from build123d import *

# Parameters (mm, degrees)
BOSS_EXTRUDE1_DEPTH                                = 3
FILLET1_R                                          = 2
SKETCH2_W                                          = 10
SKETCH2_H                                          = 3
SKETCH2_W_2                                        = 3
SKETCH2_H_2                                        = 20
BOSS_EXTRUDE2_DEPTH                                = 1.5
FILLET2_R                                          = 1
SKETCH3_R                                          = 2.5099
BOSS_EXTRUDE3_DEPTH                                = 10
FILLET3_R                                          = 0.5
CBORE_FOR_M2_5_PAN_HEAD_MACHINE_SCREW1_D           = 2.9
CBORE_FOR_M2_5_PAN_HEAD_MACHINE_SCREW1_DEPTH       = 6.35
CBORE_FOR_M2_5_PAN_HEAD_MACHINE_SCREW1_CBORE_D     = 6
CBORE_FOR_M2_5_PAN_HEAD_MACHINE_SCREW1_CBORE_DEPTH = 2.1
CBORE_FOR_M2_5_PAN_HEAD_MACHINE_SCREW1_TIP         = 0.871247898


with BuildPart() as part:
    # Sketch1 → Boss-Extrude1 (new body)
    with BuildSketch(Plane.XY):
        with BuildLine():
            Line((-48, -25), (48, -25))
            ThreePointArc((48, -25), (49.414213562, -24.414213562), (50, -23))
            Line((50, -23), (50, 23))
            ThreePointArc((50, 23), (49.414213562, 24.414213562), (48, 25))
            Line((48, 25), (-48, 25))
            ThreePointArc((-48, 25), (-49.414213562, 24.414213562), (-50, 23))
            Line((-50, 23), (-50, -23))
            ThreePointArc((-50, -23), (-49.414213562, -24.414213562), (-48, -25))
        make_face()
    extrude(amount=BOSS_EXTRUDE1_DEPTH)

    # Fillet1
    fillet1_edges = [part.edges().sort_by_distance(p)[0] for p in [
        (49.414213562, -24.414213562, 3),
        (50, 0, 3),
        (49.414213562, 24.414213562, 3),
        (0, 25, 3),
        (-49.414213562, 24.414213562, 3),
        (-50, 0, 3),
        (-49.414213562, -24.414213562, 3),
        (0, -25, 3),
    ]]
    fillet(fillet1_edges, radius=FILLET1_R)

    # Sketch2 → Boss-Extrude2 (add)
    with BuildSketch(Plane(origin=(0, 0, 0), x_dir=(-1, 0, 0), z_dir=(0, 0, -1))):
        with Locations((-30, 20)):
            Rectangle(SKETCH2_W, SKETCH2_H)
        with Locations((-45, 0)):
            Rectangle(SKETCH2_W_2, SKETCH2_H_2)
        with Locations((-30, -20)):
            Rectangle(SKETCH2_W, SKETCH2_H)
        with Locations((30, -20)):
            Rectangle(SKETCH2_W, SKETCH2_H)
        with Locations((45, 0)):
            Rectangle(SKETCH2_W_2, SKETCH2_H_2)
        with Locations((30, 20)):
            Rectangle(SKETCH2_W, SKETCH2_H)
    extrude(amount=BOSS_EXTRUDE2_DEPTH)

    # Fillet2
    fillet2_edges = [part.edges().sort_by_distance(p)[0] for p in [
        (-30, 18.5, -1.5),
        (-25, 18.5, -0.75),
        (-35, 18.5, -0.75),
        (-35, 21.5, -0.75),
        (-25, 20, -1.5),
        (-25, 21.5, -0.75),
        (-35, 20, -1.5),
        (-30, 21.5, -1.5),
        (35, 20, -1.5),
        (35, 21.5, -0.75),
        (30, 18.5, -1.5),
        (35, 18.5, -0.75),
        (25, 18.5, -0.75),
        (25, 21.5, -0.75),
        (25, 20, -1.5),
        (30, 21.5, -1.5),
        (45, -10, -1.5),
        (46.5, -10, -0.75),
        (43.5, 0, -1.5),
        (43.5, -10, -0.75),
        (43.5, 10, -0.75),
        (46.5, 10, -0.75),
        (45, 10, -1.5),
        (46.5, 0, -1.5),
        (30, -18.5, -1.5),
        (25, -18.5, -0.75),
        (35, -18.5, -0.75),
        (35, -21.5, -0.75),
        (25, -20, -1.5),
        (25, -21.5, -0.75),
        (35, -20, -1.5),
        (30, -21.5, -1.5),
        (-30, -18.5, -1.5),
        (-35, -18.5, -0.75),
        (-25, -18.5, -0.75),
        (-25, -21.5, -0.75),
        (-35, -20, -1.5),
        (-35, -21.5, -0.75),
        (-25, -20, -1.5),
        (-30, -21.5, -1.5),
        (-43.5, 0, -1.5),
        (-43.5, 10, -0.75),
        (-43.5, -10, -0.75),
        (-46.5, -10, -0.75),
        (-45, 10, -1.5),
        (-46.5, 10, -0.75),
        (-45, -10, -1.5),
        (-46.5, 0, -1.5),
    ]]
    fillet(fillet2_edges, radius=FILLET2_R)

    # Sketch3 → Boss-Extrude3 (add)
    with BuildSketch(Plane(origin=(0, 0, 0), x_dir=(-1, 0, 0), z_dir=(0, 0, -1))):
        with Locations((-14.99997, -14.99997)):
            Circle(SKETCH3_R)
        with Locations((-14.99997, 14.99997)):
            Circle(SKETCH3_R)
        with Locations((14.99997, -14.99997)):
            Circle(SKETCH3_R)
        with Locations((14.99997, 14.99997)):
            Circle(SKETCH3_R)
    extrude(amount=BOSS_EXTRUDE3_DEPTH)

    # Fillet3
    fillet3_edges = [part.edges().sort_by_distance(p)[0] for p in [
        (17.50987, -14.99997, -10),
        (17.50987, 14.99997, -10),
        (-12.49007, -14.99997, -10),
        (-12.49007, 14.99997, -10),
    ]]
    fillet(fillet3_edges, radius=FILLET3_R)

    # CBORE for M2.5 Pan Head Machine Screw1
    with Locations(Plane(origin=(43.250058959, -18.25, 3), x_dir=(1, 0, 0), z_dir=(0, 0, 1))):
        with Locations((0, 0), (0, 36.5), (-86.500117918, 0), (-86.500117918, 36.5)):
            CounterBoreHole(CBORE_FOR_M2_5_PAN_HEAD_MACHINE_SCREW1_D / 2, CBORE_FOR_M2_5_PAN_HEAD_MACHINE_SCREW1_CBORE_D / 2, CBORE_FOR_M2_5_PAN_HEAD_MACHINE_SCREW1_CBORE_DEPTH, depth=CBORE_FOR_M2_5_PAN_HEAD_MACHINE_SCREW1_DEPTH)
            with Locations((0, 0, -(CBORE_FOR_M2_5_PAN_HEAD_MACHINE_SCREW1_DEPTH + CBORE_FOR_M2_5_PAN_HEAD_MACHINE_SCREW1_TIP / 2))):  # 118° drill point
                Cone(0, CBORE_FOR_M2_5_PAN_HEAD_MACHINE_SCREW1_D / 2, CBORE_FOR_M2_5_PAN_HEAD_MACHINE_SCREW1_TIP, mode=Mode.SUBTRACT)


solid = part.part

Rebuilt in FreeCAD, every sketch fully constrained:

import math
import FreeCAD as App
import Part
import Sketcher
Q = App.Units.Quantity


def edges_at(feature, points):
    """Names of the edges that pass closest to the given points."""
    edges = feature.Shape.Edges
    near = lambda p: min(range(len(edges)), key=lambda i: edges[i].distToShape(Part.Vertex(*p))[0])
    return sorted({f"Edge{near(p) + 1}" for p in points})

doc = App.newDocument("Part")
body = doc.addObject("PartDesign::Body", "Body")

# Sketch on XY plane
sketch1 = body.newObject("Sketcher::SketchObject", "Sketch")
sketch1.AttachmentSupport = (doc.getObject("XY_Plane"), [""])
sketch1.MapMode = "FlatFace"
sketch1.addGeometry([
    Part.LineSegment(App.Vector(-48, -25, 0), App.Vector(48, -25, 0)),  # 0
    Part.ArcOfCircle(Part.Circle(App.Vector(48, -23, 0), App.Vector(0, 0, 1), 2), math.radians(-90), math.radians(0)),  # 1
    Part.LineSegment(App.Vector(50, -23, 0), App.Vector(50, 23, 0)),  # 2
    Part.ArcOfCircle(Part.Circle(App.Vector(48, 23, 0), App.Vector(0, 0, 1), 2), math.radians(0), math.radians(90)),  # 3
    Part.LineSegment(App.Vector(48, 25, 0), App.Vector(-48, 25, 0)),  # 4
    Part.ArcOfCircle(Part.Circle(App.Vector(-48, 23, 0), App.Vector(0, 0, 1), 2), math.radians(90), math.radians(180)),  # 5
    Part.LineSegment(App.Vector(-50, 23, 0), App.Vector(-50, -23, 0)),  # 6
    Part.ArcOfCircle(Part.Circle(App.Vector(-48, -23, 0), App.Vector(0, 0, 1), 2), math.radians(-180), math.radians(-90)),  # 7
], False)
sketch1.addConstraint([
    Sketcher.Constraint("Tangent", 0, 2, 1, 1),
    Sketcher.Constraint("Tangent", 1, 2, 2, 1),
    Sketcher.Constraint("Tangent", 2, 2, 3, 1),
    Sketcher.Constraint("Tangent", 3, 2, 4, 1),
    Sketcher.Constraint("Tangent", 4, 2, 5, 1),
    Sketcher.Constraint("Tangent", 5, 2, 6, 1),
    Sketcher.Constraint("Tangent", 6, 2, 7, 1),
    Sketcher.Constraint("Tangent", 7, 2, 0, 1),
    Sketcher.Constraint("Horizontal", 0),
    Sketcher.Constraint("Vertical", 2),
    Sketcher.Constraint("Horizontal", 4),
    Sketcher.Constraint("Vertical", 6),
    Sketcher.Constraint("Equal", 1, 3),
    Sketcher.Constraint("Equal", 3, 5),
    Sketcher.Constraint("Equal", 5, 7),
    Sketcher.Constraint("Symmetric", 1, 3, 5, 3, -1, 1),
    Sketcher.Constraint("Radius", 1, Q("2 mm")),
    Sketcher.Constraint("DistanceX", 0, 1, 0, 2, Q("96 mm")),
    Sketcher.Constraint("DistanceY", 2, 1, 2, 2, Q("46 mm")),
])
pad1 = body.newObject("PartDesign::Pad", "Pad")
pad1.Profile = sketch1
pad1.Length = 3
doc.recompute()

fillet = body.newObject("PartDesign::Fillet", "Fillet")
fillet.Base = (pad1, edges_at(pad1, [
    (49.414, -24.414, 3),
    (50, 0, 3),
    (49.414, 24.414, 3),
    (0, 25, 3),
    (-49.414, 24.414, 3),
    (-50, 0, 3),
    (-49.414, -24.414, 3),
    (0, -25, 3),
]))
fillet.Radius = 2

# Sketch on XY plane
sketch2 = body.newObject("Sketcher::SketchObject", "Sketch001")
sketch2.AttachmentSupport = (doc.getObject("XY_Plane"), [""])
sketch2.MapMode = "FlatFace"
sketch2.addGeometry([
    Part.LineSegment(App.Vector(35, 21.5, 0), App.Vector(35, 18.5, 0)),  # 0
    Part.LineSegment(App.Vector(35, 18.5, 0), App.Vector(25, 18.5, 0)),  # 1
    Part.LineSegment(App.Vector(25, 18.5, 0), App.Vector(25, 21.5, 0)),  # 2
    Part.LineSegment(App.Vector(25, 21.5, 0), App.Vector(35, 21.5, 0)),  # 3
    Part.LineSegment(App.Vector(46.5, 10, 0), App.Vector(46.5, -10, 0)),  # 4
    Part.LineSegment(App.Vector(46.5, -10, 0), App.Vector(43.5, -10, 0)),  # 5
    Part.LineSegment(App.Vector(43.5, -10, 0), App.Vector(43.5, 10, 0)),  # 6
    Part.LineSegment(App.Vector(43.5, 10, 0), App.Vector(46.5, 10, 0)),  # 7
    Part.LineSegment(App.Vector(35, -18.5, 0), App.Vector(35, -21.5, 0)),  # 8
    Part.LineSegment(App.Vector(35, -21.5, 0), App.Vector(25, -21.5, 0)),  # 9
    Part.LineSegment(App.Vector(25, -21.5, 0), App.Vector(25, -18.5, 0)),  # 10
    Part.LineSegment(App.Vector(25, -18.5, 0), App.Vector(35, -18.5, 0)),  # 11
    Part.LineSegment(App.Vector(-25, -18.5, 0), App.Vector(-25, -21.5, 0)),  # 12
    Part.LineSegment(App.Vector(-25, -21.5, 0), App.Vector(-35, -21.5, 0)),  # 13
    Part.LineSegment(App.Vector(-35, -21.5, 0), App.Vector(-35, -18.5, 0)),  # 14
    Part.LineSegment(App.Vector(-35, -18.5, 0), App.Vector(-25, -18.5, 0)),  # 15
    Part.LineSegment(App.Vector(-43.5, 10, 0), App.Vector(-43.5, -10, 0)),  # 16
    Part.LineSegment(App.Vector(-43.5, -10, 0), App.Vector(-46.5, -10, 0)),  # 17
    Part.LineSegment(App.Vector(-46.5, -10, 0), App.Vector(-46.5, 10, 0)),  # 18
    Part.LineSegment(App.Vector(-46.5, 10, 0), App.Vector(-43.5, 10, 0)),  # 19
    Part.LineSegment(App.Vector(-25, 21.5, 0), App.Vector(-25, 18.5, 0)),  # 20
    Part.LineSegment(App.Vector(-25, 18.5, 0), App.Vector(-35, 18.5, 0)),  # 21
    Part.LineSegment(App.Vector(-35, 18.5, 0), App.Vector(-35, 21.5, 0)),  # 22
    Part.LineSegment(App.Vector(-35, 21.5, 0), App.Vector(-25, 21.5, 0)),  # 23
], False)
sketch2.addConstraint([
    Sketcher.Constraint("Coincident", 0, 2, 1, 1),
    Sketcher.Constraint("Coincident", 1, 2, 2, 1),
    Sketcher.Constraint("Coincident", 2, 2, 3, 1),
    Sketcher.Constraint("Coincident", 3, 2, 0, 1),
    Sketcher.Constraint("Coincident", 4, 2, 5, 1),
    Sketcher.Constraint("Coincident", 5, 2, 6, 1),
    Sketcher.Constraint("Coincident", 6, 2, 7, 1),
    Sketcher.Constraint("Coincident", 7, 2, 4, 1),
    Sketcher.Constraint("Coincident", 8, 2, 9, 1),
    Sketcher.Constraint("Coincident", 9, 2, 10, 1),
    Sketcher.Constraint("Coincident", 10, 2, 11, 1),
    Sketcher.Constraint("Coincident", 11, 2, 8, 1),
    Sketcher.Constraint("Coincident", 12, 2, 13, 1),
    Sketcher.Constraint("Coincident", 13, 2, 14, 1),
    Sketcher.Constraint("Coincident", 14, 2, 15, 1),
    Sketcher.Constraint("Coincident", 15, 2, 12, 1),
    Sketcher.Constraint("Coincident", 16, 2, 17, 1),
    Sketcher.Constraint("Coincident", 17, 2, 18, 1),
    Sketcher.Constraint("Coincident", 18, 2, 19, 1),
    Sketcher.Constraint("Coincident", 19, 2, 16, 1),
    Sketcher.Constraint("Coincident", 20, 2, 21, 1),
    Sketcher.Constraint("Coincident", 21, 2, 22, 1),
    Sketcher.Constraint("Coincident", 22, 2, 23, 1),
    Sketcher.Constraint("Coincident", 23, 2, 20, 1),
    Sketcher.Constraint("Vertical", 0),
    Sketcher.Constraint("Horizontal", 1),
    Sketcher.Constraint("Vertical", 2),
    Sketcher.Constraint("Horizontal", 3),
    Sketcher.Constraint("Vertical", 4),
    Sketcher.Constraint("Horizontal", 5),
    Sketcher.Constraint("Vertical", 6),
    Sketcher.Constraint("Horizontal", 7),
    Sketcher.Constraint("Vertical", 8),
    Sketcher.Constraint("Horizontal", 9),
    Sketcher.Constraint("Vertical", 10),
    Sketcher.Constraint("Horizontal", 11),
    Sketcher.Constraint("Vertical", 12),
    Sketcher.Constraint("Horizontal", 13),
    Sketcher.Constraint("Vertical", 14),
    Sketcher.Constraint("Horizontal", 15),
    Sketcher.Constraint("Vertical", 16),
    Sketcher.Constraint("Horizontal", 17),
    Sketcher.Constraint("Vertical", 18),
    Sketcher.Constraint("Horizontal", 19),
    Sketcher.Constraint("Vertical", 20),
    Sketcher.Constraint("Horizontal", 21),
    Sketcher.Constraint("Vertical", 22),
    Sketcher.Constraint("Horizontal", 23),
    Sketcher.Constraint("Symmetric", 2, 2, 12, 2, -1, 1),
    Sketcher.Constraint("Symmetric", 0, 2, 14, 2, -1, 1),
    Sketcher.Constraint("Symmetric", 6, 2, 16, 2, -1, 1),
    Sketcher.Constraint("Symmetric", 4, 2, 18, 2, -1, 1),
    Sketcher.Constraint("Symmetric", 10, 2, 20, 2, -1, 1),
    Sketcher.Constraint("Symmetric", 8, 2, 22, 2, -1, 1),
    Sketcher.Constraint("Symmetric", 9, 2, 12, 2, -2),
    Sketcher.Constraint("Symmetric", 11, 2, 14, 2, -2),
    Sketcher.Constraint("Horizontal", 5, 2, 16, 2),
    Sketcher.Constraint("Equal", 19, 0),
    Sketcher.Constraint("DistanceX", 1, 2, 1, 1, Q("10 mm")),
    Sketcher.Constraint("DistanceX", 5, 2, 5, 1, Q("3 mm")),
    Sketcher.Constraint("DistanceY", 4, 2, 4, 1, Q("20 mm")),
    Sketcher.Constraint("DistanceX", -1, 1, 0, 2, Q("35 mm")),
    Sketcher.Constraint("DistanceY", 8, 2, 0, 2, Q("40 mm")),
    Sketcher.Constraint("DistanceX", -1, 1, 4, 2, Q("46.5 mm")),
])
pad2 = body.newObject("PartDesign::Pad", "Pad001")
pad2.Profile = sketch2
pad2.Length = 1.5
pad2.Reversed = True
doc.recompute()

fillet2 = body.newObject("PartDesign::Fillet", "Fillet001")
fillet2.Base = (pad2, edges_at(pad2, [
    (-30, 18.5, -1.5),
    (-25, 18.5, -0.75),
    (-35, 18.5, -0.75),
    (-35, 21.5, -0.75),
    (-25, 20, -1.5),
    (-25, 21.5, -0.75),
    (-35, 20, -1.5),
    (-30, 21.5, -1.5),
    (35, 20, -1.5),
    (35, 21.5, -0.75),
    (30, 18.5, -1.5),
    (35, 18.5, -0.75),
    (25, 18.5, -0.75),
    (25, 21.5, -0.75),
    (25, 20, -1.5),
    (30, 21.5, -1.5),
    (45, -10, -1.5),
    (46.5, -10, -0.75),
    (43.5, 0, -1.5),
    (43.5, -10, -0.75),
    (43.5, 10, -0.75),
    (46.5, 10, -0.75),
    (45, 10, -1.5),
    (46.5, 0, -1.5),
    (30, -18.5, -1.5),
    (25, -18.5, -0.75),
    (35, -18.5, -0.75),
    (35, -21.5, -0.75),
    (25, -20, -1.5),
    (25, -21.5, -0.75),
    (35, -20, -1.5),
    (30, -21.5, -1.5),
    (-30, -18.5, -1.5),
    (-35, -18.5, -0.75),
    (-25, -18.5, -0.75),
    (-25, -21.5, -0.75),
    (-35, -20, -1.5),
    (-35, -21.5, -0.75),
    (-25, -20, -1.5),
    (-30, -21.5, -1.5),
    (-43.5, 0, -1.5),
    (-43.5, 10, -0.75),
    (-43.5, -10, -0.75),
    (-46.5, -10, -0.75),
    (-45, 10, -1.5),
    (-46.5, 10, -0.75),
    (-45, -10, -1.5),
    (-46.5, 0, -1.5),
]))
fillet2.Radius = 1

# Sketch on XY plane
sketch3 = body.newObject("Sketcher::SketchObject", "Sketch002")
sketch3.AttachmentSupport = (doc.getObject("XY_Plane"), [""])
sketch3.MapMode = "FlatFace"
sketch3.addGeometry([
    Part.Circle(App.Vector(15, -15, 0), App.Vector(0, 0, 1), 2.5),
    Part.Circle(App.Vector(15, 15, 0), App.Vector(0, 0, 1), 2.5),
    Part.Circle(App.Vector(-15, -15, 0), App.Vector(0, 0, 1), 2.5),
    Part.Circle(App.Vector(-15, 15, 0), App.Vector(0, 0, 1), 2.5),
], False)
sketch3.addConstraint([
    Sketcher.Constraint("Equal", 0, 1),
    Sketcher.Constraint("Equal", 1, 2),
    Sketcher.Constraint("Equal", 2, 3),
    Sketcher.Constraint("Symmetric", 1, 3, 2, 3, -1, 1),
    Sketcher.Constraint("Symmetric", 0, 3, 3, 3, -1, 1),
    Sketcher.Constraint("Symmetric", 0, 3, 2, 3, -2),
    Sketcher.Constraint("Diameter", 0, Q("5.0198 mm")),
    Sketcher.Constraint("DistanceX", -1, 1, 0, 3, Q("14.99997 mm")),
    Sketcher.Constraint("DistanceY", 0, 3, -1, 1, Q("14.99997 mm")),
])
pad3 = body.newObject("PartDesign::Pad", "Pad002")
pad3.Profile = sketch3
pad3.Length = 10
pad3.Reversed = True
doc.recompute()

fillet3 = body.newObject("PartDesign::Fillet", "Fillet002")
fillet3.Base = (pad3, edges_at(pad3, [
    (17.51, -15, -10),
    (17.51, 15, -10),
    (-12.49, -15, -10),
    (-12.49, 15, -10),
]))
fillet3.Radius = 0.5

# Sketch on XY plane
sketch4 = body.newObject("Sketcher::SketchObject", "Sketch003")
sketch4.AttachmentSupport = (doc.getObject("XY_Plane"), [""])
sketch4.MapMode = "FlatFace"
sketch4.AttachmentOffset = App.Placement(App.Vector(0, 0, 3), App.Rotation())
sketch4.addGeometry([
    Part.Circle(App.Vector(43.3, -18.2, 0), App.Vector(0, 0, 1), 1.4),
    Part.Circle(App.Vector(43.3, 18.2, 0), App.Vector(0, 0, 1), 1.4),
    Part.Circle(App.Vector(-43.3, -18.2, 0), App.Vector(0, 0, 1), 1.4),
    Part.Circle(App.Vector(-43.3, 18.2, 0), App.Vector(0, 0, 1), 1.4),
], False)
sketch4.addConstraint([
    Sketcher.Constraint("Equal", 0, 1),
    Sketcher.Constraint("Equal", 1, 2),
    Sketcher.Constraint("Equal", 2, 3),
    Sketcher.Constraint("Symmetric", 1, 3, 2, 3, -1, 1),
    Sketcher.Constraint("Symmetric", 0, 3, 3, 3, -1, 1),
    Sketcher.Constraint("Symmetric", 0, 3, 2, 3, -2),
    Sketcher.Constraint("Diameter", 0, Q("2.9 mm")),
    Sketcher.Constraint("DistanceY", 0, 3, 1, 3, Q("36.5 mm")),
    Sketcher.Constraint("DistanceX", -1, 1, 0, 3, Q("43.250059 mm")),
])
doc.recompute()
hole = body.newObject("PartDesign::Hole", "Hole")
hole.Profile = sketch4
hole.ThreadType = "None"
hole.Diameter = 2.9
hole.DepthType = "Dimension"
hole.Depth = 6.35
hole.DrillPoint = "Angled"
hole.DrillPointAngle = 118
hole.HoleCutType = "Counterbore"
hole.HoleCutDiameter = 6
hole.HoleCutDepth = 2.1

doc.recompute()
